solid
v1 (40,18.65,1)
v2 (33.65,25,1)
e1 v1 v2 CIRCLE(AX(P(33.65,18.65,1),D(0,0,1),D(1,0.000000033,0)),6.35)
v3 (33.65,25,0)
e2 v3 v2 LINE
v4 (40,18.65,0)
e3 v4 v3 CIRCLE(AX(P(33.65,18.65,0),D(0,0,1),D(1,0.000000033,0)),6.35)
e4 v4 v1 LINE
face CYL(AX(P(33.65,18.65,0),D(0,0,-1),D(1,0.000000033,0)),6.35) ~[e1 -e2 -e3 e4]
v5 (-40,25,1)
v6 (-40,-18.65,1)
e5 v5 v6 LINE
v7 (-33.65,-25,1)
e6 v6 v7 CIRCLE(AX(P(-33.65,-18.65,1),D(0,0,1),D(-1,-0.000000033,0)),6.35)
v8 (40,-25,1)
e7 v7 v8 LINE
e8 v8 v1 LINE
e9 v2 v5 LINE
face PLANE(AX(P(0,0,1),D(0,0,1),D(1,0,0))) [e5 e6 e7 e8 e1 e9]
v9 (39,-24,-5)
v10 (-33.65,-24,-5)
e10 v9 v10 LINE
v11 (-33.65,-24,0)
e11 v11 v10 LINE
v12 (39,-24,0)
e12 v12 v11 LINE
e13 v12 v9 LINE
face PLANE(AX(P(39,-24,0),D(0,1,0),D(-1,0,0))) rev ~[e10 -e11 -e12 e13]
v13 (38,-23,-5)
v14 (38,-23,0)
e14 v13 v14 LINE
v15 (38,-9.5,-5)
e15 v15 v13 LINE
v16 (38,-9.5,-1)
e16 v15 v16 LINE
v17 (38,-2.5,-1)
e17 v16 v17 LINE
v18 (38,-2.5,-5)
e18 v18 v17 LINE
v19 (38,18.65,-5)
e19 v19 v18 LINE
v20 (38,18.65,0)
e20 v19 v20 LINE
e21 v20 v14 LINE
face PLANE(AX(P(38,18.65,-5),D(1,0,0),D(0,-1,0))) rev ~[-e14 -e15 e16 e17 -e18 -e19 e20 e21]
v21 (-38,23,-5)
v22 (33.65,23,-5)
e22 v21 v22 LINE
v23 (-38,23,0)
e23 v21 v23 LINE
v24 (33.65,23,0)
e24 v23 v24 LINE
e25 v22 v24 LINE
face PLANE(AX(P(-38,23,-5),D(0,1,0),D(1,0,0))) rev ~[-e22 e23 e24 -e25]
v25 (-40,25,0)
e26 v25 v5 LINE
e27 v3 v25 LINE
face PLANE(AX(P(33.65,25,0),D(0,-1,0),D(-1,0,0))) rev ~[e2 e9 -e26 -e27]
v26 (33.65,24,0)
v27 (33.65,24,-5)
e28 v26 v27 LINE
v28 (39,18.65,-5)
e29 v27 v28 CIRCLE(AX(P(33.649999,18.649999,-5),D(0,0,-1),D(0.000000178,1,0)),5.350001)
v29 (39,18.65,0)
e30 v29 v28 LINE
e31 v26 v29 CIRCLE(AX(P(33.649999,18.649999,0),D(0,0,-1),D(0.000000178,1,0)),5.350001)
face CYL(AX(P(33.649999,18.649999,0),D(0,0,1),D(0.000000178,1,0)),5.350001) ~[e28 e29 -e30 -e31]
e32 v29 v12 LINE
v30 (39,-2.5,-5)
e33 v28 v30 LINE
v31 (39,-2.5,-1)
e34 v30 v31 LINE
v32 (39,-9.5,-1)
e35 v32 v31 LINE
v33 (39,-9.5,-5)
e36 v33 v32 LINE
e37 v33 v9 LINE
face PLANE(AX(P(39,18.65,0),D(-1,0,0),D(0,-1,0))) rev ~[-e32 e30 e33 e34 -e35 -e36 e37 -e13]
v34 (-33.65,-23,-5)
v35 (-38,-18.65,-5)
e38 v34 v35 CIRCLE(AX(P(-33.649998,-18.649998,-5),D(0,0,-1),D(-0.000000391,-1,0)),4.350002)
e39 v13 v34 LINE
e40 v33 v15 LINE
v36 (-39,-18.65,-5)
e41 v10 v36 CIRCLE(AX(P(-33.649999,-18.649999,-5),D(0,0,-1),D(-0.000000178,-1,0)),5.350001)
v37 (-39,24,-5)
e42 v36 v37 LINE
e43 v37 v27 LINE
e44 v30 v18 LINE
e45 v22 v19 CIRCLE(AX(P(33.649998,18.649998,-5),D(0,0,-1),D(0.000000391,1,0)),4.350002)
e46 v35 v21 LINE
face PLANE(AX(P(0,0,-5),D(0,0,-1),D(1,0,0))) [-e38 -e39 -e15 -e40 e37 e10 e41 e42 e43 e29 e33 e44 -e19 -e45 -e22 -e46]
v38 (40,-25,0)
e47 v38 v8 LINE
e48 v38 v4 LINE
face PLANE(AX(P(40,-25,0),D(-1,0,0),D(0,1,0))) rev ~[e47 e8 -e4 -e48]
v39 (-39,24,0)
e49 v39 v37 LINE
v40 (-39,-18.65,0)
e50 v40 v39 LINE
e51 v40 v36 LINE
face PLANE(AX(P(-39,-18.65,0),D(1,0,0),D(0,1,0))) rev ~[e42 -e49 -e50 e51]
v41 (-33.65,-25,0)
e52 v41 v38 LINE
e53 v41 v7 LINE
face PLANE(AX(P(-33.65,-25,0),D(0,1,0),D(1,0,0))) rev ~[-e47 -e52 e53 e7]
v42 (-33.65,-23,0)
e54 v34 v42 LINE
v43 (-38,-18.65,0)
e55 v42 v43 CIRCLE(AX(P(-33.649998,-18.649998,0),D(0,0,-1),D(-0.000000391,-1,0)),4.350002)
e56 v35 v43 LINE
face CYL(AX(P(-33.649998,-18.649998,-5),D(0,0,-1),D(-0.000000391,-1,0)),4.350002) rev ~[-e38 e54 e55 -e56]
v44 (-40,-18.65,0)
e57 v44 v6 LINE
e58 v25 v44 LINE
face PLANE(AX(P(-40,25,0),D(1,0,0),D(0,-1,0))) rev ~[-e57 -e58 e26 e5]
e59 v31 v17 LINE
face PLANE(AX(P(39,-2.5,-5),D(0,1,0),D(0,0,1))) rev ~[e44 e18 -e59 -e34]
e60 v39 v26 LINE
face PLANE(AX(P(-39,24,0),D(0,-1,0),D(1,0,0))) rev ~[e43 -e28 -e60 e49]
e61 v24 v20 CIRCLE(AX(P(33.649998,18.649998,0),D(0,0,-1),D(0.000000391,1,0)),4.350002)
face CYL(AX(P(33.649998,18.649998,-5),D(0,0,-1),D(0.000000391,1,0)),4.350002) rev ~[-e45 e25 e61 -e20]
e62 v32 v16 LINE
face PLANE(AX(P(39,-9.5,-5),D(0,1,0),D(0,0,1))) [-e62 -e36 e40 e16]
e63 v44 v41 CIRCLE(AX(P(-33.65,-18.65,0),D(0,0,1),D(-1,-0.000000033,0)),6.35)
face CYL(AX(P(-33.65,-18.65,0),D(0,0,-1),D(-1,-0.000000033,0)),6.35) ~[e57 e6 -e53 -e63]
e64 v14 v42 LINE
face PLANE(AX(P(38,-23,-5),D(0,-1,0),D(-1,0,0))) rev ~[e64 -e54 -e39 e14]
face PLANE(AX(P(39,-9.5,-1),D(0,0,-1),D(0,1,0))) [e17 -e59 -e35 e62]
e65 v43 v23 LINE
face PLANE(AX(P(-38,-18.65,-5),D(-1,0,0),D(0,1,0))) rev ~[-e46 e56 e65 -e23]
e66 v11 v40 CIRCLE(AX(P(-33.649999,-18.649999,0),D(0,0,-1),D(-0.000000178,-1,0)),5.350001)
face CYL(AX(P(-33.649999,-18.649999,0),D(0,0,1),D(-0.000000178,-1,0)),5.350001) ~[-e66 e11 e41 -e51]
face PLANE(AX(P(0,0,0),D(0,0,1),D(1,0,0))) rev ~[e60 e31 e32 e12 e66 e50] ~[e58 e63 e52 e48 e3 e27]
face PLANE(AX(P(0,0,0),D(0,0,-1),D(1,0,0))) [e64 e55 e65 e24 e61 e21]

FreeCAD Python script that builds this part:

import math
import FreeCAD as App
import Part
import Sketcher

V = App.Vector

doc = App.newDocument("Part")
params = doc.addObject("Spreadsheet::Sheet", "Params")
for row, (alias, value) in enumerate([
    ("sketch1_radius", "6.35 mm"),
    ("pad1_length", "1 mm"),
    ("sketch2_radius", "5.350001 mm"),
    ("pad2_length", "5 mm"),
    ("sketch3_radius", "4.350002 mm"),
    ("pocket1_length", "5 mm"),
    ("sketch4_width", "7 mm"),
    ("sketch4_height", "4 mm"),
    ("pocket2_length", "1 mm"),
], start=1):
    params.set(f"A{row}", alias)
    params.set(f"B{row}", "=" + value)
    params.setAlias(f"B{row}", alias)

body = doc.addObject("PartDesign::Body", "Body")

# Sketch on XY plane
sketch1 = doc.addObject("Sketcher::SketchObject", "Sketch")
body.addObject(sketch1)
sketch1.AttachmentSupport = (doc.XY_Plane, [""])
sketch1.MapMode = "FlatFace"
sketch1.addGeometry([
    Part.LineSegment(V(-34, -25, 0), V(40, -25, 0)),  # 0
    Part.LineSegment(V(40, -25, 0), V(40, 19, 0)),  # 1
    Part.ArcOfCircle(Part.Circle(V(34, 19, 0), V(0, 0, 1), 6), math.radians(0), math.radians(90)),  # 2
    Part.LineSegment(V(34, 25, 0), V(-40, 25, 0)),  # 3
    Part.LineSegment(V(-40, 25, 0), V(-40, -19, 0)),  # 4
    Part.ArcOfCircle(Part.Circle(V(-34, -19, 0), V(0, 0, 1), 6), math.radians(-180), math.radians(-90)),  # 5
], False)
sketch1.addConstraint([
    Sketcher.Constraint("Coincident", 0, 2, 1, 1),
    Sketcher.Constraint("Tangent", 1, 2, 2, 1),
    Sketcher.Constraint("Tangent", 2, 2, 3, 1),
    Sketcher.Constraint("Coincident", 3, 2, 4, 1),
    Sketcher.Constraint("Tangent", 4, 2, 5, 1),
    Sketcher.Constraint("Tangent", 5, 2, 0, 1),
    Sketcher.Constraint("Horizontal", 0),
    Sketcher.Constraint("Vertical", 1),
    Sketcher.Constraint("Horizontal", 3),
    Sketcher.Constraint("Vertical", 4),
    Sketcher.Constraint("Equal", 2, 5),
    Sketcher.Constraint("Symmetric", 2, 3, 5, 3, -1, 1),
    Sketcher.Constraint("Radius", 2, 6.35),
    Sketcher.Constraint("DistanceX", -1, 1, 0, 2, 40.0),
    Sketcher.Constraint("DistanceY", 0, 2, -1, 1, 25.0),
])
sketch1.setExpression("Constraints[12]", "Params.sketch1_radius")
pad1 = doc.addObject("PartDesign::Pad", "Pad")
body.addObject(pad1)
pad1.Profile = sketch1
pad1.setExpression("Length", "Params.pad1_length")

# Sketch on XY plane
sketch2 = doc.addObject("Sketcher::SketchObject", "Sketch001")
body.addObject(sketch2)
sketch2.AttachmentSupport = (doc.XY_Plane, [""])
sketch2.MapMode = "FlatFace"
sketch2.addGeometry([
    Part.LineSegment(V(39, -24, 0), V(-34, -24, 0)),  # 0
    Part.ArcOfCircle(Part.Circle(V(-34, -19, 0), V(0, 0, 1), 5), math.radians(-180), math.radians(-90)),  # 1
    Part.LineSegment(V(-39, -19, 0), V(-39, 24, 0)),  # 2
    Part.LineSegment(V(-39, 24, 0), V(34, 24, 0)),  # 3
    Part.ArcOfCircle(Part.Circle(V(34, 19, 0), V(0, 0, 1), 5), math.radians(0), math.radians(90)),  # 4
    Part.LineSegment(V(39, 19, 0), V(39, -24, 0)),  # 5
], False)
sketch2.addConstraint([
    Sketcher.Constraint("Tangent", 0, 2, 1, 2),
    Sketcher.Constraint("Tangent", 1, 1, 2, 1),
    Sketcher.Constraint("Coincident", 2, 2, 3, 1),
    Sketcher.Constraint("Tangent", 3, 2, 4, 2),
    Sketcher.Constraint("Tangent", 4, 1, 5, 1),
    Sketcher.Constraint("Coincident", 5, 2, 0, 1),
    Sketcher.Constraint("Horizontal", 0),
    Sketcher.Constraint("Vertical", 2),
    Sketcher.Constraint("Horizontal", 3),
    Sketcher.Constraint("Vertical", 5),
    Sketcher.Constraint("Equal", 1, 4),
    Sketcher.Constraint("Symmetric", 1, 3, 4, 3, -1, 1),
    Sketcher.Constraint("Radius", 1, 5.350001),
    Sketcher.Constraint("DistanceY", 0, 2, -1, 1, 24.0),
    Sketcher.Constraint("DistanceX", 1, 1, -1, 1, 39.0),
])
sketch2.setExpression("Constraints[12]", "Params.sketch2_radius")
pad2 = doc.addObject("PartDesign::Pad", "Pad001")
body.addObject(pad2)
pad2.Profile = sketch2
pad2.setExpression("Length", "Params.pad2_length")
pad2.Reversed = True

# Sketch on XY plane
sketch3 = doc.addObject("Sketcher::SketchObject", "Sketch002")
body.addObject(sketch3)
sketch3.AttachmentSupport = (doc.XY_Plane, [""])
sketch3.MapMode = "FlatFace"
sketch3.AttachmentOffset = App.Placement(V(0, 0, -5), App.Rotation())
sketch3.addGeometry([
    Part.LineSegment(V(-38, -18.6, 0), V(-38, 23, 0)),  # 0
    Part.LineSegment(V(-38, 23, 0), V(33.6, 23, 0)),  # 1
    Part.ArcOfCircle(Part.Circle(V(33.6, 18.6, 0), V(0, 0, 1), 4.4), math.radians(0), math.radians(90)),  # 2
    Part.LineSegment(V(38, 18.6, 0), V(38, -23, 0)),  # 3
    Part.LineSegment(V(38, -23, 0), V(-33.6, -23, 0)),  # 4
    Part.ArcOfCircle(Part.Circle(V(-33.6, -18.6, 0), V(0, 0, 1), 4.4), math.radians(-180), math.radians(-90)),  # 5
], False)
sketch3.addConstraint([
    Sketcher.Constraint("Coincident", 0, 2, 1, 1),
    Sketcher.Constraint("Tangent", 1, 2, 2, 2),
    Sketcher.Constraint("Tangent", 2, 1, 3, 1),
    Sketcher.Constraint("Coincident", 3, 2, 4, 1),
    Sketcher.Constraint("Tangent", 4, 2, 5, 2),
    Sketcher.Constraint("Tangent", 5, 1, 0, 1),
    Sketcher.Constraint("Vertical", 0),
    Sketcher.Constraint("Horizontal", 1),
    Sketcher.Constraint("Vertical", 3),
    Sketcher.Constraint("Horizontal", 4),
    Sketcher.Constraint("Equal", 2, 5),
    Sketcher.Constraint("Symmetric", 2, 3, 5, 3, -1, 1),
    Sketcher.Constraint("Radius", 2, 4.350002),
    Sketcher.Constraint("DistanceX", 0, 2, -1, 1, 38.0),
    Sketcher.Constraint("DistanceY", -1, 1, 0, 2, 23.0),
])
sketch3.setExpression("Constraints[12]", "Params.sketch3_radius")
pocket1 = doc.addObject("PartDesign::Pocket", "Pocket")
body.addObject(pocket1)
pocket1.Profile = sketch3
pocket1.setExpression("Length", "Params.pocket1_length")
pocket1.Reversed = True

# Sketch on YZ plane
sketch4 = doc.addObject("Sketcher::SketchObject", "Sketch003")
body.addObject(sketch4)
sketch4.AttachmentSupport = (doc.YZ_Plane, [""])
sketch4.MapMode = "FlatFace"
sketch4.AttachmentOffset = App.Placement(V(0, 0, 39), App.Rotation())
sketch4.addGeometry([
    Part.LineSegment(V(-9.5, -1, 0), V(-9.5, -5, 0)),
    Part.LineSegment(V(-9.5, -5, 0), V(-2.5, -5, 0)),
    Part.LineSegment(V(-2.5, -5, 0), V(-2.5, -1, 0)),
    Part.LineSegment(V(-2.5, -1, 0), V(-9.5, -1, 0)),
], False)
sketch4.addConstraint([
    Sketcher.Constraint("Coincident", 0, 2, 1, 1),
    Sketcher.Constraint("Coincident", 1, 2, 2, 1),
    Sketcher.Constraint("Coincident", 2, 2, 3, 1),
    Sketcher.Constraint("Coincident", 3, 2, 0, 1),
    Sketcher.Constraint("Vertical", 0),
    Sketcher.Constraint("Horizontal", 1),
    Sketcher.Constraint("Vertical", 2),
    Sketcher.Constraint("Horizontal", 3),
    Sketcher.Constraint("DistanceX", 1, 1, 1, 2, 7.0),
    Sketcher.Constraint("DistanceY", 0, 2, 0, 1, 4.0),
    Sketcher.Constraint("DistanceY", 0, 2, -1, 1, 5.0),
    Sketcher.Constraint("DistanceX", 0, 2, -1, 1, 9.5),
])
sketch4.setExpression("Constraints[8]", "Params.sketch4_width")
sketch4.setExpression("Constraints[9]", "Params.sketch4_height")
pocket2 = doc.addObject("PartDesign::Pocket", "Pocket001")
body.addObject(pocket2)
pocket2.Profile = sketch4
pocket2.setExpression("Length", "Params.pocket2_length")

doc.recompute()
